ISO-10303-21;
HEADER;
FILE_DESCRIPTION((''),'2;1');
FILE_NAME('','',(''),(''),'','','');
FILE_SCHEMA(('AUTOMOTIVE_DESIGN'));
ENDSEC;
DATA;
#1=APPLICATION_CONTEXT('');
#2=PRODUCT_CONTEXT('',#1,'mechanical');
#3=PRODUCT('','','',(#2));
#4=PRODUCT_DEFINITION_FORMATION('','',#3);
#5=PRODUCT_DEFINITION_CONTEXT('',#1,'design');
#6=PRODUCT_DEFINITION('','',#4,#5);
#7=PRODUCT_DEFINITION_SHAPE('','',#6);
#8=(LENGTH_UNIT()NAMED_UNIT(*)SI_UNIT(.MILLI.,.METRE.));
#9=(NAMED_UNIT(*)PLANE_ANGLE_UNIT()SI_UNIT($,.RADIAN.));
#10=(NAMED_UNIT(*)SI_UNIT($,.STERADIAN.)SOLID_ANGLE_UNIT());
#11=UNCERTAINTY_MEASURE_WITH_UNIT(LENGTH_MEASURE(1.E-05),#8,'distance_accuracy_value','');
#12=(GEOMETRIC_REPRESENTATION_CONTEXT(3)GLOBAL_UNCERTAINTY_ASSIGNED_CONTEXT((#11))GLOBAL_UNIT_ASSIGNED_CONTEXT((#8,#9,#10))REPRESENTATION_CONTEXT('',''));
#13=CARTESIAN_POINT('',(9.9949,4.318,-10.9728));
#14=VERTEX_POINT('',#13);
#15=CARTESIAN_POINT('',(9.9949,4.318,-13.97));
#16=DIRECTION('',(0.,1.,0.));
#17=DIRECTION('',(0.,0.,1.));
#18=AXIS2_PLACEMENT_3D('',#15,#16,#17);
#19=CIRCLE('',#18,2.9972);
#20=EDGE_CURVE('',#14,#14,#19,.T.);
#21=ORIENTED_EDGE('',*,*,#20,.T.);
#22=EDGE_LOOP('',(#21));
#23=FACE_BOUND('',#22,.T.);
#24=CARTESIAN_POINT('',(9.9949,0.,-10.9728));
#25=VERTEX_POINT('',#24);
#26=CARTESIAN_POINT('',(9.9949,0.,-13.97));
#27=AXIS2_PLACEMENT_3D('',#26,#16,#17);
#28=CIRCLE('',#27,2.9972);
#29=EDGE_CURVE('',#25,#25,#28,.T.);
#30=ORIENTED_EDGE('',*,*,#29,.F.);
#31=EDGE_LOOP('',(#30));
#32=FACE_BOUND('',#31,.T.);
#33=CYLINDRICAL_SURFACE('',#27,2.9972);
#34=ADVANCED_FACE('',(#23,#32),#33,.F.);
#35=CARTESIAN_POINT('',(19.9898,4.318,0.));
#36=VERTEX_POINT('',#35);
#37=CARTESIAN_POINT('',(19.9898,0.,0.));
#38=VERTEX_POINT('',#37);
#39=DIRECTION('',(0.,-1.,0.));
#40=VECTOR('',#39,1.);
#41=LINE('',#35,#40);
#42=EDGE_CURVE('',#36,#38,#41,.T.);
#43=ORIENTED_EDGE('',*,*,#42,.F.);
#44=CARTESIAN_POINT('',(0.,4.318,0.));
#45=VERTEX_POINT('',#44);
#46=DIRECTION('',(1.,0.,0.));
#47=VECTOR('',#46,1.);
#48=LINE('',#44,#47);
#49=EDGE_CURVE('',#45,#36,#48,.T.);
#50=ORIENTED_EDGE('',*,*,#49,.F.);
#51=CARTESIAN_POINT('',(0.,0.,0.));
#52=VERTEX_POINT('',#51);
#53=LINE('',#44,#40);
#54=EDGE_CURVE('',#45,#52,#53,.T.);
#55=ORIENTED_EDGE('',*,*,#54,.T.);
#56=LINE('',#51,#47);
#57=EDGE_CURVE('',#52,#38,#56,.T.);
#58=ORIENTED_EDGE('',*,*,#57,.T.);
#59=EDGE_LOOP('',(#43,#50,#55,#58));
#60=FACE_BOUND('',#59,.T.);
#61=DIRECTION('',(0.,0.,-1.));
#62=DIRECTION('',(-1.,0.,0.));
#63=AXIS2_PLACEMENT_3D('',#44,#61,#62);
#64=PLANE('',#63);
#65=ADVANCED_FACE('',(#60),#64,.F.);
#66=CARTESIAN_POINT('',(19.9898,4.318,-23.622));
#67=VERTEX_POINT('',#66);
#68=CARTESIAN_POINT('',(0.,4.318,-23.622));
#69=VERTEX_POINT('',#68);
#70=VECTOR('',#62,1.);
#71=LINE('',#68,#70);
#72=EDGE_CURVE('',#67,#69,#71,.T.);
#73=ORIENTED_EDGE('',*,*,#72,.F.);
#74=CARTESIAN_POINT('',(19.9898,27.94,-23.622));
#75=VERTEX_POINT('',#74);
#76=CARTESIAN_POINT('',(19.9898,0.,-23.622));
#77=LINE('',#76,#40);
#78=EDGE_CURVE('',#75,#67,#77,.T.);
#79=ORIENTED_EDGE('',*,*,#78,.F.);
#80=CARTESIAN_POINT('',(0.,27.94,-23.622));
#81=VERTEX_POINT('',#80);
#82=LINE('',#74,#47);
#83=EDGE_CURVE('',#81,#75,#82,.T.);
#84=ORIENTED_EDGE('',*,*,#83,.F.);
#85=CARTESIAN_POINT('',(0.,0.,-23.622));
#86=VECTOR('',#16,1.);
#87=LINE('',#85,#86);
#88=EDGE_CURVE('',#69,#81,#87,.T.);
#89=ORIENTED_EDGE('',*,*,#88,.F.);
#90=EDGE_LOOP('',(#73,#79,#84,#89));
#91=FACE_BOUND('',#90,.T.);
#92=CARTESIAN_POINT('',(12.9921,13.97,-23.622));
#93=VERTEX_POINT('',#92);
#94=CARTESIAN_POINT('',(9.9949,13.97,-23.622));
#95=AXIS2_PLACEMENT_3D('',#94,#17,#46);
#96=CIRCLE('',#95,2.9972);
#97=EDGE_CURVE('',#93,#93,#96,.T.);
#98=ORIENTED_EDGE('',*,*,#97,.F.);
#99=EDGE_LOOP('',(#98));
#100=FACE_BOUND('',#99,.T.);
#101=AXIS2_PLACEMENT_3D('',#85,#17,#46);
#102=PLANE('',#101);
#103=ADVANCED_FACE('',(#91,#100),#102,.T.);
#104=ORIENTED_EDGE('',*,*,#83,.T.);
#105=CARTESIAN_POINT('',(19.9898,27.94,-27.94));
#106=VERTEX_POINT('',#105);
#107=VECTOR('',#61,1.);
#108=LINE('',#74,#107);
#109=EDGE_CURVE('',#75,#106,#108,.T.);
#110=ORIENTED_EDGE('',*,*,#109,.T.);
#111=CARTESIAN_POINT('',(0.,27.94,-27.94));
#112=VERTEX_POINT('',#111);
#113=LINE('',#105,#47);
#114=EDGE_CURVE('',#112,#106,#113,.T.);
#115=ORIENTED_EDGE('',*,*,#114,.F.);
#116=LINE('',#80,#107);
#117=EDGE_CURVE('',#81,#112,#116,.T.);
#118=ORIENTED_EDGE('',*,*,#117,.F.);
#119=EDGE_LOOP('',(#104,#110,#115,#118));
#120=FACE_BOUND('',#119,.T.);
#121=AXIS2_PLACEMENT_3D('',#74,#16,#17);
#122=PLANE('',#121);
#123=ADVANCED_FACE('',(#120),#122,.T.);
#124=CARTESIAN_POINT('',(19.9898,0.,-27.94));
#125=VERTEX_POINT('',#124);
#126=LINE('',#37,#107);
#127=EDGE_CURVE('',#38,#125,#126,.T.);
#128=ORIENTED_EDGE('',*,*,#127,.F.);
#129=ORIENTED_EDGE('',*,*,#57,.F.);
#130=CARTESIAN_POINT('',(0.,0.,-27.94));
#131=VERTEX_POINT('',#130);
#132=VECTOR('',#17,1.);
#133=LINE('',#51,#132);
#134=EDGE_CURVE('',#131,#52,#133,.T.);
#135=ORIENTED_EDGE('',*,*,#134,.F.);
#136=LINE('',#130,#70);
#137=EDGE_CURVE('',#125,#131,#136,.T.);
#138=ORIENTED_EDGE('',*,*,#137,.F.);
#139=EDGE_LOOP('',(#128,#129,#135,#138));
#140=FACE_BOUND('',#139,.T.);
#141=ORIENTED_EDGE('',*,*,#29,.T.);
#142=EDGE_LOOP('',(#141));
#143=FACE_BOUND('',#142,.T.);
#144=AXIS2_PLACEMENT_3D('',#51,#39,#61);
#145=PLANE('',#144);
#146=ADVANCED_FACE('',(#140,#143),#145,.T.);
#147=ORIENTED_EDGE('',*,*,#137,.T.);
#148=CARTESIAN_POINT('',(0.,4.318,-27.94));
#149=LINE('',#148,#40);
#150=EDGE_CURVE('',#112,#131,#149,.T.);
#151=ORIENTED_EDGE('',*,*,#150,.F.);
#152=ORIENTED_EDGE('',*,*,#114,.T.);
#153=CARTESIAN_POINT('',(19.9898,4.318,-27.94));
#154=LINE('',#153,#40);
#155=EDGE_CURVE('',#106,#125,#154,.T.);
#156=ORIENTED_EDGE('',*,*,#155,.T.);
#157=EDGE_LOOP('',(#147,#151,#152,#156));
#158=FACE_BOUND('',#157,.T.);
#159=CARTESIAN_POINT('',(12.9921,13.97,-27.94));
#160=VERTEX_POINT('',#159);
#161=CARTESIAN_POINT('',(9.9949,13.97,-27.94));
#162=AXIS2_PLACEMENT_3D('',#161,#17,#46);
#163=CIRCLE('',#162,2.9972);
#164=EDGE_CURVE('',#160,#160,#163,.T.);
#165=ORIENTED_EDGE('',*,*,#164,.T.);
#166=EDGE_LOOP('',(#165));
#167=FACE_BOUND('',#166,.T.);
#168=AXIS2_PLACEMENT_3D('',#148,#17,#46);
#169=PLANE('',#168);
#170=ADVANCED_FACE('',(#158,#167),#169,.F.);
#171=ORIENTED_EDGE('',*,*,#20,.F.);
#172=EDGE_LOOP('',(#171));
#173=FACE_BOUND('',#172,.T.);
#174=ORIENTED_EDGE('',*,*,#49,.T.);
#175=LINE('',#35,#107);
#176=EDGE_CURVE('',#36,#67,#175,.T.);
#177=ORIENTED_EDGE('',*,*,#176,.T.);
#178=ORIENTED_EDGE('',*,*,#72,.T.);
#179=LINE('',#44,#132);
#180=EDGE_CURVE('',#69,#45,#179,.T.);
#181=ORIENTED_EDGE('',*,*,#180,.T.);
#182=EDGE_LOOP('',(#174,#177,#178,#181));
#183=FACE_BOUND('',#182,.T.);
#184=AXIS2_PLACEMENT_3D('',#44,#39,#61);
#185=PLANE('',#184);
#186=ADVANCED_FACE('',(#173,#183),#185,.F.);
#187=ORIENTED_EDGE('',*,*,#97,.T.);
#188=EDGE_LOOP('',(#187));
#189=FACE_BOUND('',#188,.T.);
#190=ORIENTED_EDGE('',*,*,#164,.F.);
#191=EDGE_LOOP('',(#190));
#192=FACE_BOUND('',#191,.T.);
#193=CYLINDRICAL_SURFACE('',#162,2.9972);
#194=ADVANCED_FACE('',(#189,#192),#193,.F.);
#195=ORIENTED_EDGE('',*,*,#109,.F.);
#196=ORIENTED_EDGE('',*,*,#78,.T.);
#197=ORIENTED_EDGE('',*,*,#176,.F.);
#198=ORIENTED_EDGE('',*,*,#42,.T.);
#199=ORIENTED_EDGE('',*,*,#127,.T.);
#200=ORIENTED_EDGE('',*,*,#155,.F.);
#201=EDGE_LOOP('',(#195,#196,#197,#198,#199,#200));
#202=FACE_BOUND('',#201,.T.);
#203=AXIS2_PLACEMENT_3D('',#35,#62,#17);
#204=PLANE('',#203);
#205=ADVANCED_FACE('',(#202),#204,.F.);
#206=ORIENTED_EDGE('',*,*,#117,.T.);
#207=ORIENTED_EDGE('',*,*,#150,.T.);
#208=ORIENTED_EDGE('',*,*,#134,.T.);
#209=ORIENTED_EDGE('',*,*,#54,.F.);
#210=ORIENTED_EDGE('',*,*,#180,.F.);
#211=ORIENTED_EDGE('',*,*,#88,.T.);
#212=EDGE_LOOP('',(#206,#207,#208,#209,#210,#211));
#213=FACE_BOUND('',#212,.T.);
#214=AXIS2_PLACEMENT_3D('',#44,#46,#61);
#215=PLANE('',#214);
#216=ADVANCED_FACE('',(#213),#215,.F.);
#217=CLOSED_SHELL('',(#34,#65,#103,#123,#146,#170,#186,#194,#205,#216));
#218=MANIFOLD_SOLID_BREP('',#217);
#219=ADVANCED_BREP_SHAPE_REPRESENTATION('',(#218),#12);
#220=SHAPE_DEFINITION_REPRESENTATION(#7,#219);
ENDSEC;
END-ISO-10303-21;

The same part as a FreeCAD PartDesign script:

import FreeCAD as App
import Part
import Sketcher
from FreeCAD import Vector
Q = App.Units.Quantity


def add_polygon(sketch, points):
    """Adds a closed chain of lines whose ends are joined by coincident constraints."""
    first, n = sketch.GeometryCount, len(points)
    for a, b in zip(points, points[1:] + points[:1]):
        sketch.addGeometry(Part.LineSegment(App.Vector(*a, 0), App.Vector(*b, 0)), False)
    for i in range(n):
        sketch.addConstraint(Sketcher.Constraint("Coincident", first + i, 2, first + (i + 1) % n, 1))

doc = App.newDocument("Part")
body = doc.addObject("PartDesign::Body", "Body")

# Sketch on XZ plane
sketch1 = body.newObject("Sketcher::SketchObject", "Sketch")
sketch1.AttachmentSupport = (doc.getObject("XZ_Plane"), [""])
sketch1.MapMode = "FlatFace"
add_polygon(sketch1, [(0, -28), (0, 0), (20, 0), (20, -28)])  # lines 0-3
sketch1.addConstraint([
    Sketcher.Constraint("Vertical", 0),
    Sketcher.Constraint("Horizontal", 1),
    Sketcher.Constraint("Vertical", 2),
    Sketcher.Constraint("Horizontal", 3),
    Sketcher.Constraint("Coincident", 0, 2, -1, 1),
    Sketcher.Constraint("DistanceY", 0, 1, 0, 2, Q("1.1 in")),
    Sketcher.Constraint("DistanceX", 1, 1, 1, 2, Q("0.787 in")),
])
pad1 = body.newObject("PartDesign::Pad", "Pad")
pad1.Profile = sketch1
pad1.Length = Q("0.17 in")
pad1.Reversed = True

# Sketch on XY plane
sketch2 = body.newObject("Sketcher::SketchObject", "Sketch001")
sketch2.AttachmentSupport = (doc.getObject("XY_Plane"), [""])
sketch2.MapMode = "FlatFace"
sketch2.AttachmentOffset = App.Placement(Vector(0, 0, -1.1 * 25.4), App.Rotation())
add_polygon(sketch2, [(20, 28), (20, 0), (0, 0), (0, 28)])  # lines 0-3
sketch2.addConstraint([
    Sketcher.Constraint("Vertical", 0),
    Sketcher.Constraint("Horizontal", 1),
    Sketcher.Constraint("Vertical", 2),
    Sketcher.Constraint("Horizontal", 3),
    Sketcher.Constraint("Coincident", 1, 2, -1, 1),
    Sketcher.Constraint("DistanceY", 0, 2, 0, 1, Q("1.1 in")),
    Sketcher.Constraint("DistanceX", 1, 2, 1, 1, Q("0.787 in")),
])
pad2 = body.newObject("PartDesign::Pad", "Pad001")
pad2.Profile = sketch2
pad2.Length = Q("0.17 in")

# Sketch on XZ plane
sketch3 = body.newObject("Sketcher::SketchObject", "Sketch002")
sketch3.AttachmentSupport = (doc.getObject("XZ_Plane"), [""])
sketch3.MapMode = "FlatFace"
sketch3.AttachmentOffset = App.Placement(Vector(0, 0, -0.17 * 25.4), App.Rotation())
sketch3.addGeometry(Part.Circle(Vector(10, -14, 0), Vector(0, 0, 1), 3), False)
sketch3.addConstraint([
    Sketcher.Constraint("Diameter", 0, Q("0.236 in")),
    Sketcher.Constraint("DistanceY", 0, 3, -1, 1, Q("0.55 in")),
    Sketcher.Constraint("DistanceX", -1, 1, 0, 3, Q("0.3935 in")),
])
pocket1 = body.newObject("PartDesign::Pocket", "Pocket")
pocket1.Profile = sketch3
pocket1.Type = "ThroughAll"
pocket1.Reversed = True

# Sketch on XY plane
sketch4 = body.newObject("Sketcher::SketchObject", "Sketch003")
sketch4.AttachmentSupport = (doc.getObject("XY_Plane"), [""])
sketch4.MapMode = "FlatFace"
sketch4.AttachmentOffset = App.Placement(Vector(0, 0, -0.93 * 25.4), App.Rotation())
sketch4.addGeometry(Part.Circle(Vector(10, 14, 0), Vector(0, 0, 1), 3), False)
sketch4.addConstraint([
    Sketcher.Constraint("Diameter", 0, Q("0.236 in")),
    Sketcher.Constraint("DistanceY", -1, 1, 0, 3, Q("0.55 in")),
    Sketcher.Constraint("DistanceX", -1, 1, 0, 3, Q("0.3935 in")),
])
pocket2 = body.newObject("PartDesign::Pocket", "Pocket001")
pocket2.Profile = sketch4
pocket2.Type = "ThroughAll"

doc.recompute()
